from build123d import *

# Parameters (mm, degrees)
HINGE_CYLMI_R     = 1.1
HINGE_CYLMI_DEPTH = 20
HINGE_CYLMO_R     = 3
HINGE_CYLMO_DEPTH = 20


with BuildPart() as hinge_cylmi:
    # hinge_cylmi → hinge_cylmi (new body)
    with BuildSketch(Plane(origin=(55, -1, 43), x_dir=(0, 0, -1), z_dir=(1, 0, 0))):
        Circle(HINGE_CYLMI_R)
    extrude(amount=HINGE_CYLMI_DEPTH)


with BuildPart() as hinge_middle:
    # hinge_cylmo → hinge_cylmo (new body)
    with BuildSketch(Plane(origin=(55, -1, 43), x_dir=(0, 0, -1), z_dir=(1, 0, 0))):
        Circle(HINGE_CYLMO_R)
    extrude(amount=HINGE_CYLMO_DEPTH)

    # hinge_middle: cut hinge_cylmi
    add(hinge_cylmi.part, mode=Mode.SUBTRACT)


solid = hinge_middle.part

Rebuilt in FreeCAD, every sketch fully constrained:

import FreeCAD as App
import Part
import Sketcher
Q = App.Units.Quantity

doc = App.newDocument("Part")
body = doc.addObject("PartDesign::Body", "Body")

# Sketch on YZ plane
sketch1 = body.newObject("Sketcher::SketchObject", "Sketch")
sketch1.AttachmentSupport = (doc.getObject("YZ_Plane"), [""])
sketch1.MapMode = "FlatFace"
sketch1.AttachmentOffset = App.Placement(App.Vector(0, 0, 55), App.Rotation())
sketch1.addGeometry(Part.Circle(App.Vector(-1, 43, 0), App.Vector(0, 0, 1), 1.1), False)
sketch1.addConstraint(Sketcher.Constraint("Diameter", 0, Q("2.2 mm")))
sketch1.addConstraint(Sketcher.Constraint("DistanceX", 0, 3, -1, 1, Q("1 mm")))
sketch1.addConstraint(Sketcher.Constraint("DistanceY", -1, 1, 0, 3, Q("43 mm")))
pad1 = body.newObject("PartDesign::Pad", "Pad")
pad1.Profile = sketch1
pad1.Length = 20
body2 = doc.addObject("PartDesign::Body", "Body001")

# Sketch on YZ plane
sketch2 = body2.newObject("Sketcher::SketchObject", "Sketch001")
sketch2.AttachmentSupport = (doc.getObject("YZ_Plane001"), [""])
sketch2.MapMode = "FlatFace"
sketch2.AttachmentOffset = App.Placement(App.Vector(0, 0, 55), App.Rotation())
sketch2.addGeometry(Part.Circle(App.Vector(-1, 43, 0), App.Vector(0, 0, 1), 3), False)
sketch2.addConstraint(Sketcher.Constraint("Diameter", 0, Q("6 mm")))
sketch2.addConstraint(Sketcher.Constraint("DistanceX", 0, 3, -1, 1, Q("1 mm")))
sketch2.addConstraint(Sketcher.Constraint("DistanceY", -1, 1, 0, 3, Q("43 mm")))
pad2 = body2.newObject("PartDesign::Pad", "Pad001")
pad2.Profile = sketch2
pad2.Length = 20
doc.recompute()

boolean = body2.newObject("PartDesign::Boolean", "Boolean")
boolean.Type = "Cut"
boolean.addObjects([body])

doc.recompute()
